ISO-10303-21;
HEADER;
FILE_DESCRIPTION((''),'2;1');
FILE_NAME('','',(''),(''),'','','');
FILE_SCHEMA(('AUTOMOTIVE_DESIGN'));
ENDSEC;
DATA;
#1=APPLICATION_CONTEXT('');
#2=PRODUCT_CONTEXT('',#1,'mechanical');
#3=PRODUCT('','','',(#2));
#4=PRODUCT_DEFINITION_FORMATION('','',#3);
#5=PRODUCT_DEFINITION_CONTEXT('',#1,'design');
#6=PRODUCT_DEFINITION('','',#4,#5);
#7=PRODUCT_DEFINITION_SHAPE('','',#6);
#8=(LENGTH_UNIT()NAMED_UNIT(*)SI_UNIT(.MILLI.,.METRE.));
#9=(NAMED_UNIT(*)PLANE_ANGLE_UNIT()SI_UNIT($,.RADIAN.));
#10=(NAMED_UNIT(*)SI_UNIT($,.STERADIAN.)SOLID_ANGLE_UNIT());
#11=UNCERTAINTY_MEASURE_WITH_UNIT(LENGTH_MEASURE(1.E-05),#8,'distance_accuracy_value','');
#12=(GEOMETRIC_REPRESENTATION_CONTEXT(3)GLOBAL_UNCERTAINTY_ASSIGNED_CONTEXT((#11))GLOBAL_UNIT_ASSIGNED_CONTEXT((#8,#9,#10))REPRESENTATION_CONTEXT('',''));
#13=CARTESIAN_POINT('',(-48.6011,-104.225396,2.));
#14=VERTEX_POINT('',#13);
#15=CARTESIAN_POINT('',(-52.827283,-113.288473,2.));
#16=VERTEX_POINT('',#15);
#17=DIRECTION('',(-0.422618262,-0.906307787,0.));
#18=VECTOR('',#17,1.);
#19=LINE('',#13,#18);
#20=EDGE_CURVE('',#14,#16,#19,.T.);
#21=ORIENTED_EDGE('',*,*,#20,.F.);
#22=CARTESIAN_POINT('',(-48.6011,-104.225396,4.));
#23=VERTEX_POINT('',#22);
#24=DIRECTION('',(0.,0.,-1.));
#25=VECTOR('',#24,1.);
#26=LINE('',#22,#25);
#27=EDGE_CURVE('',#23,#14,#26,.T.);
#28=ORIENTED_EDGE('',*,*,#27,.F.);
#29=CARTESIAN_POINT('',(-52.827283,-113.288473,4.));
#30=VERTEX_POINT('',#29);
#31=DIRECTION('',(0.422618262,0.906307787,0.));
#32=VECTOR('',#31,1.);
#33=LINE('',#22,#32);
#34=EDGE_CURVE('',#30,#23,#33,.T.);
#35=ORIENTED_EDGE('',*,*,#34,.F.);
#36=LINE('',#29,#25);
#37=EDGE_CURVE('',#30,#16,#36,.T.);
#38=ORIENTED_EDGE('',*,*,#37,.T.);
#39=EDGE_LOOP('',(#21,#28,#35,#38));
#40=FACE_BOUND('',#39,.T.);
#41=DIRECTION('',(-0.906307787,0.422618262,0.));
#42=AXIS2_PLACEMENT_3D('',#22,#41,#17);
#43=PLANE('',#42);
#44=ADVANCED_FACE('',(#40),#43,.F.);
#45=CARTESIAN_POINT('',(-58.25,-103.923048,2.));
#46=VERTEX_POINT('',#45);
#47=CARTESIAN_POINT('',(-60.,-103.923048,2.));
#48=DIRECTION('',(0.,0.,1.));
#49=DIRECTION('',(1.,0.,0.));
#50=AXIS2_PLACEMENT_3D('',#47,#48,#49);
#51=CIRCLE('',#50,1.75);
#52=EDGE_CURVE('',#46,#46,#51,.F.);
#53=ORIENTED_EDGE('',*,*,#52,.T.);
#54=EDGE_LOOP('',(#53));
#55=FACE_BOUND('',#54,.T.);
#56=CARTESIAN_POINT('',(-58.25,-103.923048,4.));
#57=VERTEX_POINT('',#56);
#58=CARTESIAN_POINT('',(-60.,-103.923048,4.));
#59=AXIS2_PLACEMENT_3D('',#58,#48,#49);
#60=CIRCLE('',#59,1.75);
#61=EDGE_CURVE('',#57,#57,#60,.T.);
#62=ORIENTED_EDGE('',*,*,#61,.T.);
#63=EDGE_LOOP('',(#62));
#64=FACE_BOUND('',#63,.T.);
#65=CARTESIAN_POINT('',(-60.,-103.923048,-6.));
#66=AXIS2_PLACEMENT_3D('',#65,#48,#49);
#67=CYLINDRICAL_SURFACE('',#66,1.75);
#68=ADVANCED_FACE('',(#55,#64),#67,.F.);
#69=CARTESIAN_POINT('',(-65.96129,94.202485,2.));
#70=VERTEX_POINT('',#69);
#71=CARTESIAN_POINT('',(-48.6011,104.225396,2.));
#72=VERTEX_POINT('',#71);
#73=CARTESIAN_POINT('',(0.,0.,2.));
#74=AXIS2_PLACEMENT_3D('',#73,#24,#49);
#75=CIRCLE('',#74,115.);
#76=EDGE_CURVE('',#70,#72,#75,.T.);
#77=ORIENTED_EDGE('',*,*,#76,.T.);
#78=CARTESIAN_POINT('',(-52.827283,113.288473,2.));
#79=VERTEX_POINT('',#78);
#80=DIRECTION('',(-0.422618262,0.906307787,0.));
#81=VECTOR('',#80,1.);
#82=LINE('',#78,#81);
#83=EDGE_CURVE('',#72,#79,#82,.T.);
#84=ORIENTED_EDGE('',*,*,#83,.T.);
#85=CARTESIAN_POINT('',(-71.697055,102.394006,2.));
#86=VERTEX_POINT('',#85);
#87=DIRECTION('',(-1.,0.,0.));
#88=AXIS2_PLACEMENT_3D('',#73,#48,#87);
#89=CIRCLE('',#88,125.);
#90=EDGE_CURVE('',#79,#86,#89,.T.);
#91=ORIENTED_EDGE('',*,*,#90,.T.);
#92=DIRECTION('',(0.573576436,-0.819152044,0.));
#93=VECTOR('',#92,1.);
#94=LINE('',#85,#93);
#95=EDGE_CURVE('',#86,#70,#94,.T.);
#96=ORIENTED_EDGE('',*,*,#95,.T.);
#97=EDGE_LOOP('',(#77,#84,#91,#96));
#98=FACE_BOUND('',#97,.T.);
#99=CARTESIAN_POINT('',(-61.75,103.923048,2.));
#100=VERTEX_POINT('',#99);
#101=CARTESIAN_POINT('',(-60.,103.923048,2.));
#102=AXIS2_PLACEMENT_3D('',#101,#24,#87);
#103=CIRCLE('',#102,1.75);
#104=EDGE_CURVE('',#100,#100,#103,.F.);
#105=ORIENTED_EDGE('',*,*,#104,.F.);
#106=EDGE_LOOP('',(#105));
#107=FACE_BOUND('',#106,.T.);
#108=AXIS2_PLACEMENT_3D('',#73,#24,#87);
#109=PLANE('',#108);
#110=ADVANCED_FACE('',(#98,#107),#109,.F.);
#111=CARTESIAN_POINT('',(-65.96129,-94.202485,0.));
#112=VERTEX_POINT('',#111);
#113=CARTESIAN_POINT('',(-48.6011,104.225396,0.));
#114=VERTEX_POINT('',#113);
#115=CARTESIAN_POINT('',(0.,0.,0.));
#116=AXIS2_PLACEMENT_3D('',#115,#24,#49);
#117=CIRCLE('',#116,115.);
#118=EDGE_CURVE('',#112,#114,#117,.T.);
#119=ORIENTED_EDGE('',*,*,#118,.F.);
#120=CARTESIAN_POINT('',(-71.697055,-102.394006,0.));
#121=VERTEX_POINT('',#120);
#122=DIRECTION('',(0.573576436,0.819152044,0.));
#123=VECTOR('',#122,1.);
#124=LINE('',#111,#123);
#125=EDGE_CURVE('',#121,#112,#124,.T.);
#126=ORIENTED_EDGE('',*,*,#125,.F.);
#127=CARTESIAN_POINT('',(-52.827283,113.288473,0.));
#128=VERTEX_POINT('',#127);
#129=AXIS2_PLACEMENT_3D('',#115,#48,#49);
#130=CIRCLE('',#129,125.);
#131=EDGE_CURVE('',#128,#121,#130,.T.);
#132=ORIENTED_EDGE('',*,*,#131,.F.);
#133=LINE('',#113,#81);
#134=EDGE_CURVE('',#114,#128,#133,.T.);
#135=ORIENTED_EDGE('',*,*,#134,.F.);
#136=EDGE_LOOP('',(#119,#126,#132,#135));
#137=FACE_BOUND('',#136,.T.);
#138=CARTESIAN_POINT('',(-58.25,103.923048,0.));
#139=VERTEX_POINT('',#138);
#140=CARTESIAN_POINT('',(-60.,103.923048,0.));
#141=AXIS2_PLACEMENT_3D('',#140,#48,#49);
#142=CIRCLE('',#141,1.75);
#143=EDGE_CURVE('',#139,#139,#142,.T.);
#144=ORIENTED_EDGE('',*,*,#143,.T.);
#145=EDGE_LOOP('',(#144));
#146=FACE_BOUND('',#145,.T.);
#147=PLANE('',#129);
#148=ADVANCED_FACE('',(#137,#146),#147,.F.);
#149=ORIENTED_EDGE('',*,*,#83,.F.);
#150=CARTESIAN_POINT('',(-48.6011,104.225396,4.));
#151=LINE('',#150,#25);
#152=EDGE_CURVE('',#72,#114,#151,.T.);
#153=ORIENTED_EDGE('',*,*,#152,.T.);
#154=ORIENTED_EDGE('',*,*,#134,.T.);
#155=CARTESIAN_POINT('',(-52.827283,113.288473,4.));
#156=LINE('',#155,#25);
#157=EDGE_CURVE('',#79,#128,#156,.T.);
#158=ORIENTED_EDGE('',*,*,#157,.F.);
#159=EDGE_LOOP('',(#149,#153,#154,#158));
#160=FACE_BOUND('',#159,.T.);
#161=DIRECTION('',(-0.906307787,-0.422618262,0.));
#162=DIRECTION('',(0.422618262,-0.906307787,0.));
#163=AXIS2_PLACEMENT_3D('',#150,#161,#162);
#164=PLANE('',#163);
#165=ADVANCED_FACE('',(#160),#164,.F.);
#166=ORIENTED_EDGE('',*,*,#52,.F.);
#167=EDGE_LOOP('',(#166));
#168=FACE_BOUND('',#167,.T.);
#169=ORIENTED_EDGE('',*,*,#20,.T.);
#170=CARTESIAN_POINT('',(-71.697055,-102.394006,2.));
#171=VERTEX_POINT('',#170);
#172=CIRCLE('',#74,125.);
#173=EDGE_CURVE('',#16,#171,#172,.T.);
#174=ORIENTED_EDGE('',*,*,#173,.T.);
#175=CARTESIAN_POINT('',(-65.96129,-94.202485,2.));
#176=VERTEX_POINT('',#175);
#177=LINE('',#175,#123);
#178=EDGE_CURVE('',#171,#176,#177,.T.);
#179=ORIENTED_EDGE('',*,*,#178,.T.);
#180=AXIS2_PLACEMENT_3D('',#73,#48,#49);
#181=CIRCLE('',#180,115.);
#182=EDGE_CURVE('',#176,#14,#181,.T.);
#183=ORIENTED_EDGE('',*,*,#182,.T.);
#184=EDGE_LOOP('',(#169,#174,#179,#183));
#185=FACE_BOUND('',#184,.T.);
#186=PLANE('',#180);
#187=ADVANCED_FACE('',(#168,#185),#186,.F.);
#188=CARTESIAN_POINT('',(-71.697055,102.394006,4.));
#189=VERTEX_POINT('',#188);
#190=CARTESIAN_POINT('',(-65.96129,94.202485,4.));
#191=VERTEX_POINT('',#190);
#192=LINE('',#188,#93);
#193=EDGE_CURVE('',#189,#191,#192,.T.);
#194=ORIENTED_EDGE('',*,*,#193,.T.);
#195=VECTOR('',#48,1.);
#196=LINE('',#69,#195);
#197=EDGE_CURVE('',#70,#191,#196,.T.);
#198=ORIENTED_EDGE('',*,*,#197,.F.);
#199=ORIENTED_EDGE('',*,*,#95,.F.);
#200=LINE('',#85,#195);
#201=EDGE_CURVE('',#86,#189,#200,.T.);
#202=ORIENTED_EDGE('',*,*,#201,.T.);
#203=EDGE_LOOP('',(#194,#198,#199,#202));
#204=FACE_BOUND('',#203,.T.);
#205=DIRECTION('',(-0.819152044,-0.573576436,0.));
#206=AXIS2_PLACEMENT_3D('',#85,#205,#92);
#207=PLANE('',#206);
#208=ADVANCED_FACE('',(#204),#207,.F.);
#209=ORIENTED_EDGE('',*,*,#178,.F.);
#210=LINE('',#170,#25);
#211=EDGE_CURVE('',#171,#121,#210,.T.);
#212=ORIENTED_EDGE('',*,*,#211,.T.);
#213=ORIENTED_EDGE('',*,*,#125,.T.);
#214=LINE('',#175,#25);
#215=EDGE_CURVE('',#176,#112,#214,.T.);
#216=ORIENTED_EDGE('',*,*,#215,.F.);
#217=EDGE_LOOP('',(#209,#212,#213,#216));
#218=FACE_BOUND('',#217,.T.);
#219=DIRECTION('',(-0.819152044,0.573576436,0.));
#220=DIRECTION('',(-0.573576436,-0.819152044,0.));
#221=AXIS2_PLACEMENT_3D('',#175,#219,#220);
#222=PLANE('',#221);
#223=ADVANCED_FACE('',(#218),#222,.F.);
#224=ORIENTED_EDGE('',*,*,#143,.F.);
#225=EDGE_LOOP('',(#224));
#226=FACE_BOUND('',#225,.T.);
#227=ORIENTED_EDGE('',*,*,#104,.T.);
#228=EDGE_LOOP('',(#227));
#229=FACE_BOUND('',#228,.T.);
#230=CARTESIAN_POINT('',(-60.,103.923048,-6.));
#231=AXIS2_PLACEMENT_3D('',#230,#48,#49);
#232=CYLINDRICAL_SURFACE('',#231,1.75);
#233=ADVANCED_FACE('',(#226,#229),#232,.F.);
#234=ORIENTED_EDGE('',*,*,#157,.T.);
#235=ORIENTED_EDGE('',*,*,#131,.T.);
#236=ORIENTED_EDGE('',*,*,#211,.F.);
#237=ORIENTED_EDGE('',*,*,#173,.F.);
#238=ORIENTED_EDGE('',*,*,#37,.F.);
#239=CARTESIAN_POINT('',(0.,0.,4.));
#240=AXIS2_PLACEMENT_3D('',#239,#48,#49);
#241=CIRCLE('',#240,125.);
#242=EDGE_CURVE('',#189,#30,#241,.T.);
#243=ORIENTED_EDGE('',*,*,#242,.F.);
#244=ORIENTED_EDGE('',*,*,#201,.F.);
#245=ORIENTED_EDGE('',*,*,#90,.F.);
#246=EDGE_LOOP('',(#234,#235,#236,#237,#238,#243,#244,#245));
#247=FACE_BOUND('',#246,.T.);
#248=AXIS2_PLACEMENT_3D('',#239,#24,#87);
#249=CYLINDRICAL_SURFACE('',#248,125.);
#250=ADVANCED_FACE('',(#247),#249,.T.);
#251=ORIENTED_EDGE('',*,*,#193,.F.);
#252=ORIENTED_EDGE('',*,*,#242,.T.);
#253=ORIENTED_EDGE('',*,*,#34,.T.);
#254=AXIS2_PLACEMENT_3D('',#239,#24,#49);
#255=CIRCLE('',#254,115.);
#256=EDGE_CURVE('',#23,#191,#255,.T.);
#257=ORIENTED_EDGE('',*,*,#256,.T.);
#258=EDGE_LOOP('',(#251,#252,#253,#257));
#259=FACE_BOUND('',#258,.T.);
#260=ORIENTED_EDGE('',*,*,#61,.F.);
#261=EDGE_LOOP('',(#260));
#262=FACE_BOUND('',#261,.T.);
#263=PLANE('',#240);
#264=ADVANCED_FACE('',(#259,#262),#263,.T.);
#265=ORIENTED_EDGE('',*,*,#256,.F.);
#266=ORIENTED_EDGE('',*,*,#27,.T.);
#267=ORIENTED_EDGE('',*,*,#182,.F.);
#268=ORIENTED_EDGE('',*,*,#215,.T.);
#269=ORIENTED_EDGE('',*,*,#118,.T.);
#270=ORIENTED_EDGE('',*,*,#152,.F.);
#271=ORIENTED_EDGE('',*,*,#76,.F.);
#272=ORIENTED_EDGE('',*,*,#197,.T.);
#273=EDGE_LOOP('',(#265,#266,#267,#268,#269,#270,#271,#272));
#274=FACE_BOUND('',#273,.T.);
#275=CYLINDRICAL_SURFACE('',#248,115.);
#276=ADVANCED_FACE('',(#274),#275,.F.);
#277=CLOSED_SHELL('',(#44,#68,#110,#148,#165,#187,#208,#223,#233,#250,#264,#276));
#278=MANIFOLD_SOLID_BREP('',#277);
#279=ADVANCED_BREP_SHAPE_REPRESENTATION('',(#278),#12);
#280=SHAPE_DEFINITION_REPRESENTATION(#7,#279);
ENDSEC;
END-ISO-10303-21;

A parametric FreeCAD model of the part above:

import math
import FreeCAD as App
import Part
import Sketcher

V = App.Vector
Q = App.Units.Quantity

doc = App.newDocument("Part")
body = doc.addObject("PartDesign::Body", "Body")

# Sketch on XY plane
sketch1 = body.newObject("Sketcher::SketchObject", "Sketch")
sketch1.AttachmentSupport = (doc.getObject("XY_Plane"), [""])
sketch1.MapMode = "FlatFace"
sketch1.addGeometry([
    Part.LineSegment(V(-53, -113, 0), V(-49, -104, 0)),
    Part.ArcOfCircle(Part.Circle(V(0, 0, 0), V(0, 0, 1), 115), math.radians(115), math.radians(245)),
    Part.LineSegment(V(-49, 104, 0), V(-53, 113, 0)),
    Part.ArcOfCircle(Part.Circle(V(0, 0, 0), V(0, 0, 1), 125), math.radians(115), math.radians(245)),
], False)
sketch1.addConstraint([
    Sketcher.Constraint("Coincident", 0, 2, 1, 2),
    Sketcher.Constraint("Coincident", 1, 1, 2, 1),
    Sketcher.Constraint("Coincident", 2, 2, 3, 1),
    Sketcher.Constraint("Coincident", 3, 2, 0, 1),
    Sketcher.Constraint("Coincident", 1, 3, -1, 1),
    Sketcher.Constraint("Coincident", 3, 3, -1, 1),
    Sketcher.Constraint("Vertical", 0, 2, 1, 1),
    Sketcher.Constraint("Vertical", 2, 2, 3, 2),
    Sketcher.Constraint("Radius", 1, 115.0),
    Sketcher.Constraint("Radius", 3, 125.0),
    Sketcher.Constraint("Angle", 0, Q("65 deg")),
    Sketcher.Constraint("DistanceX", 0, 2, -1, 1, 48.6011),
])
pad1 = body.newObject("PartDesign::Pad", "Pad")
pad1.Profile = sketch1
pad1.Length = 4

# Sketch on XY plane
sketch2 = body.newObject("Sketcher::SketchObject", "Sketch001")
sketch2.AttachmentSupport = (doc.getObject("XY_Plane"), [""])
sketch2.MapMode = "FlatFace"
sketch2.AttachmentOffset = App.Placement(V(0, 0, 4), App.Rotation())
sketch2.addGeometry([
    Part.Circle(V(-60, 103.9, 0), V(0, 0, 1), 1.8),
    Part.Circle(V(-60, -103.9, 0), V(0, 0, 1), 1.8),
], False)
sketch2.addConstraint([
    Sketcher.Constraint("Equal", 0, 1),
    Sketcher.Constraint("Symmetric", 0, 3, 1, 3, -1),
    Sketcher.Constraint("Diameter", 0, 3.5),
    Sketcher.Constraint("DistanceX", 0, 3, -1, 1, 60.0),
    Sketcher.Constraint("DistanceY", -1, 1, 0, 3, 103.923048),
])
pocket1 = body.newObject("PartDesign::Pocket", "Pocket")
pocket1.Profile = sketch2
pocket1.Length = 10

# Sketch on XY plane
sketch3 = body.newObject("Sketcher::SketchObject", "Sketch002")
sketch3.AttachmentSupport = (doc.getObject("XY_Plane"), [""])
sketch3.MapMode = "FlatFace"
sketch3.AttachmentOffset = App.Placement(V(0, 0, 2), App.Rotation())
sketch3.addGeometry([
    Part.LineSegment(V(-72, 102, 0), V(-66, 94, 0)),
    Part.ArcOfCircle(Part.Circle(V(0, 0, 0), V(0, 0, 1), 115), math.radians(115), math.radians(125)),
    Part.LineSegment(V(-49, 104, 0), V(-53, 113, 0)),
    Part.ArcOfCircle(Part.Circle(V(0, 0, 0), V(0, 0, 1), 125), math.radians(115), math.radians(125)),
], False)
sketch3.addConstraint([
    Sketcher.Constraint("Coincident", 0, 2, 1, 2),
    Sketcher.Constraint("Coincident", 1, 1, 2, 1),
    Sketcher.Constraint("Coincident", 2, 2, 3, 1),
    Sketcher.Constraint("Coincident", 3, 2, 0, 1),
    Sketcher.Constraint("Coincident", 1, 3, -1, 1),
    Sketcher.Constraint("Coincident", 3, 3, -1, 1),
    Sketcher.Constraint("Radius", 1, 115.0),
    Sketcher.Constraint("Radius", 3, 125.0),
    Sketcher.Constraint("Angle", 0, Q("-55 deg")),
    Sketcher.Constraint("Angle", 2, Q("115 deg")),
    Sketcher.Constraint("DistanceX", 1, 1, -1, 1, 48.6011),
    Sketcher.Constraint("DistanceX", 0, 2, -1, 1, 65.96129),
])
pocket2 = body.newObject("PartDesign::Pocket", "Pocket001")
pocket2.Profile = sketch3
pocket2.Length = 2
pocket2.Reversed = True

# Sketch on XY plane
sketch4 = body.newObject("Sketcher::SketchObject", "Sketch003")
sketch4.AttachmentSupport = (doc.getObject("XY_Plane"), [""])
sketch4.MapMode = "FlatFace"
sketch4.addGeometry([
    Part.LineSegment(V(-72, -102, 0), V(-66, -94, 0)),
    Part.ArcOfCircle(Part.Circle(V(0, 0, 0), V(0, 0, 1), 115), math.radians(-125), math.radians(-115)),
    Part.LineSegment(V(-49, -104, 0), V(-53, -113, 0)),
    Part.ArcOfCircle(Part.Circle(V(0, 0, 0), V(0, 0, 1), 125), math.radians(-125), math.radians(-115)),
], False)
sketch4.addConstraint([
    Sketcher.Constraint("Coincident", 0, 2, 1, 1),
    Sketcher.Constraint("Coincident", 1, 2, 2, 1),
    Sketcher.Constraint("Coincident", 2, 2, 3, 2),
    Sketcher.Constraint("Coincident", 3, 1, 0, 1),
    Sketcher.Constraint("Coincident", 1, 3, -1, 1),
    Sketcher.Constraint("Coincident", 3, 3, -1, 1),
    Sketcher.Constraint("Radius", 1, 115.0),
    Sketcher.Constraint("Radius", 3, 125.0),
    Sketcher.Constraint("Angle", 0, Q("55 deg")),
    Sketcher.Constraint("Angle", 2, Q("-115 deg")),
    Sketcher.Constraint("DistanceX", 1, 2, -1, 1, 48.6011),
    Sketcher.Constraint("DistanceX", 0, 2, -1, 1, 65.96129),
])
pocket3 = body.newObject("PartDesign::Pocket", "Pocket002")
pocket3.Profile = sketch4
pocket3.Length = 2
pocket3.Reversed = True

doc.recompute()
